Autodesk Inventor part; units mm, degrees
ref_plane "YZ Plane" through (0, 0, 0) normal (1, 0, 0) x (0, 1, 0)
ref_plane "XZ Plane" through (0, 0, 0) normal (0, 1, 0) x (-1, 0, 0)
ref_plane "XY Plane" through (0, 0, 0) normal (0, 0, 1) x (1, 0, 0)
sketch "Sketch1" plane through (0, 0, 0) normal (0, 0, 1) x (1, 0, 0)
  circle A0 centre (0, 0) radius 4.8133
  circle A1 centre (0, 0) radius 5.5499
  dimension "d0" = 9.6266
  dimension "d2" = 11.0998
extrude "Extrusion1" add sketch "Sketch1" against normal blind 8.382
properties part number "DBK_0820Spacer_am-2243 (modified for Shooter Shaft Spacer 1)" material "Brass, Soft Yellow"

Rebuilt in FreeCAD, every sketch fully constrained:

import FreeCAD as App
import Part
import Sketcher
from FreeCAD import Vector
Q = App.Units.Quantity

doc = App.newDocument("Part")
body = doc.addObject("PartDesign::Body", "Body")

# Sketch on XY plane
sketch1 = doc.addObject("Sketcher::SketchObject", "Sketch")
body.addObject(sketch1)
sketch1.AttachmentSupport = (doc.XY_Plane, [""])
sketch1.MapMode = "FlatFace"
sketch1.addGeometry([
    Part.Circle(Vector(0, 0, 0), Vector(0, 0, 1), 5.5499),
    Part.Circle(Vector(0, 0, 0), Vector(0, 0, 1), 4.8133),
], False)
sketch1.addConstraint([
    Sketcher.Constraint("Coincident", 0, 3, -1, 1),
    Sketcher.Constraint("Coincident", 1, 3, -1, 1),
    Sketcher.Constraint("Diameter", 0, Q("0.437 in")),
    Sketcher.Constraint("Diameter", 1, Q("0.379 in")),
])
pad1 = doc.addObject("PartDesign::Pad", "Pad")
body.addObject(pad1)
pad1.Profile = sketch1
pad1.Length = Q("0.33 in")
pad1.Reversed = True

doc.recompute()
